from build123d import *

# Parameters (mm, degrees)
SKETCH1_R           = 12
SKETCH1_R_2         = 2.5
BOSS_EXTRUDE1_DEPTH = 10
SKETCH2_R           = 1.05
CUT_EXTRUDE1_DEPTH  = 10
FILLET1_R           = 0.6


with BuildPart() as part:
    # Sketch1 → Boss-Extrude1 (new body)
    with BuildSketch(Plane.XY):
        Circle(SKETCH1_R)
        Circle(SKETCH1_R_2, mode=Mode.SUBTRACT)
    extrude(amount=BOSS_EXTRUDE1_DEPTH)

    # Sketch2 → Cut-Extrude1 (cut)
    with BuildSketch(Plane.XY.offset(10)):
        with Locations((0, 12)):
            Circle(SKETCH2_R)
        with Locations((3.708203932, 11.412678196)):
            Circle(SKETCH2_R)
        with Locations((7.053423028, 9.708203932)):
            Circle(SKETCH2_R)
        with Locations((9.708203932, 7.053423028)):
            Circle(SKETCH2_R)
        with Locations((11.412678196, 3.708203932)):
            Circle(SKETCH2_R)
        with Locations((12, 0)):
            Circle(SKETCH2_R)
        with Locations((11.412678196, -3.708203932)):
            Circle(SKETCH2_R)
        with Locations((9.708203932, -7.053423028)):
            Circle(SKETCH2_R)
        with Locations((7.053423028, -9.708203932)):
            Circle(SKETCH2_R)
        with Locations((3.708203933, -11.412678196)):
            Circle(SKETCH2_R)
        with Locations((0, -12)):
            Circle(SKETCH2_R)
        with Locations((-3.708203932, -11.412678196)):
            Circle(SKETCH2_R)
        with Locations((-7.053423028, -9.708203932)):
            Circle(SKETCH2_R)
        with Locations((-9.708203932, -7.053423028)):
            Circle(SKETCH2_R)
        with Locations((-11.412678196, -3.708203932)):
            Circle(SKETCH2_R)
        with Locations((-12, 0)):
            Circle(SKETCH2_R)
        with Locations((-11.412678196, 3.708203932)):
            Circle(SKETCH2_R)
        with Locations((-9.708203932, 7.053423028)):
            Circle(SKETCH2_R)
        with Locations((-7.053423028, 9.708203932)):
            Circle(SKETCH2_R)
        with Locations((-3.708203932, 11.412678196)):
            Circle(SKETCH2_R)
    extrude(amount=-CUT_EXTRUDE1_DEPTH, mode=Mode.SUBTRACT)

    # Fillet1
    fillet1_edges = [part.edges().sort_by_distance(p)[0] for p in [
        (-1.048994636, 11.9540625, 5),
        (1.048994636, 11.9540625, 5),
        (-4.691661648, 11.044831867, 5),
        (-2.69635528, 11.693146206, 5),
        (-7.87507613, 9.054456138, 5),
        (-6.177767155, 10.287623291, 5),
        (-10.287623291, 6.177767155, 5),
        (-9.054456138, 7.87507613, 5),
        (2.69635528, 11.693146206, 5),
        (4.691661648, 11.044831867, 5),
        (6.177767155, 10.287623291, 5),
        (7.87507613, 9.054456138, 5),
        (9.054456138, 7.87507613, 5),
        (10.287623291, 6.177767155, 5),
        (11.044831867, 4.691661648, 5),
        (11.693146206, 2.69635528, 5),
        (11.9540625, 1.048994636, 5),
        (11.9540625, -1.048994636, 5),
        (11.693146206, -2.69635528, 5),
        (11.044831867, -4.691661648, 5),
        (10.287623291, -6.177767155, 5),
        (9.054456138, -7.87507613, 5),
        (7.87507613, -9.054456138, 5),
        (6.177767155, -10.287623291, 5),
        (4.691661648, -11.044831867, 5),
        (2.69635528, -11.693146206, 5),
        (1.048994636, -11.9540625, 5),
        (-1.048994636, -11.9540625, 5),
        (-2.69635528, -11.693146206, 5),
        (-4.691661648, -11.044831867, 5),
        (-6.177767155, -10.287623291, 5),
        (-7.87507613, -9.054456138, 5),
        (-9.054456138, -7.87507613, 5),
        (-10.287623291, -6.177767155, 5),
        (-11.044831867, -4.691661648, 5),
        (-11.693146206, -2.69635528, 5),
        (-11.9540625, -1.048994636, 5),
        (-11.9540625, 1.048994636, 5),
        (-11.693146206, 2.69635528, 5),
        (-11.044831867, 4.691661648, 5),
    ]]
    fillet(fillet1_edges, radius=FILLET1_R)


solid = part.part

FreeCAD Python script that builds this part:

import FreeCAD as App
import Part
import Sketcher

V = App.Vector


def edges_at(feature, points):
    """Names of the edges that pass closest to the given points."""
    edges = feature.Shape.Edges
    near = lambda p: min(range(len(edges)), key=lambda i: edges[i].distToShape(Part.Vertex(*p))[0])
    return sorted({f"Edge{near(p) + 1}" for p in points})

doc = App.newDocument("Part")
body = doc.addObject("PartDesign::Body", "Body")

# Sketch on XY plane
sketch1 = doc.addObject("Sketcher::SketchObject", "Sketch")
body.addObject(sketch1)
sketch1.AttachmentSupport = (doc.XY_Plane, [""])
sketch1.MapMode = "FlatFace"
sketch1.addGeometry(Part.Circle(V(0, 0, 0), V(0, 0, 1), 12), False)
sketch1.addGeometry(Part.Circle(V(0, 0, 0), V(0, 0, 1), 2.5), False)
sketch1.addConstraint(Sketcher.Constraint("Coincident", 0, 3, -1, 1))
sketch1.addConstraint(Sketcher.Constraint("Coincident", 1, 3, -1, 1))
sketch1.addConstraint(Sketcher.Constraint("Diameter", 0, 24.0))
sketch1.addConstraint(Sketcher.Constraint("Diameter", 1, 5.0))
pad1 = doc.addObject("PartDesign::Pad", "Pad")
body.addObject(pad1)
pad1.Profile = sketch1
pad1.Length = 10

# Sketch on XY plane
sketch2 = doc.addObject("Sketcher::SketchObject", "Sketch001")
body.addObject(sketch2)
sketch2.AttachmentSupport = (doc.XY_Plane, [""])
sketch2.MapMode = "FlatFace"
sketch2.AttachmentOffset = App.Placement(V(0, 0, 10), App.Rotation())
sketch2.addGeometry(Part.Circle(V(0, 12, 0), V(0, 0, 1), 1.1), False)
sketch2.addGeometry(Part.Circle(V(3.7, 11.4, 0), V(0, 0, 1), 1.1), False)
sketch2.addGeometry(Part.Circle(V(7.1, 9.7, 0), V(0, 0, 1), 1.1), False)
sketch2.addGeometry(Part.Circle(V(9.7, 7.1, 0), V(0, 0, 1), 1.1), False)
sketch2.addGeometry(Part.Circle(V(11.4, 3.7, 0), V(0, 0, 1), 1.1), False)
sketch2.addGeometry(Part.Circle(V(12, 0, 0), V(0, 0, 1), 1.1), False)
sketch2.addGeometry(Part.Circle(V(11.4, -3.7, 0), V(0, 0, 1), 1.1), False)
sketch2.addGeometry(Part.Circle(V(9.7, -7.1, 0), V(0, 0, 1), 1.1), False)
sketch2.addGeometry(Part.Circle(V(7.1, -9.7, 0), V(0, 0, 1), 1.1), False)
sketch2.addGeometry(Part.Circle(V(3.7, -11.4, 0), V(0, 0, 1), 1.1), False)
sketch2.addGeometry(Part.Circle(V(0, -12, 0), V(0, 0, 1), 1.1), False)
sketch2.addGeometry(Part.Circle(V(-3.7, -11.4, 0), V(0, 0, 1), 1.1), False)
sketch2.addGeometry(Part.Circle(V(-7.1, -9.7, 0), V(0, 0, 1), 1.1), False)
sketch2.addGeometry(Part.Circle(V(-9.7, -7.1, 0), V(0, 0, 1), 1.1), False)
sketch2.addGeometry(Part.Circle(V(-11.4, -3.7, 0), V(0, 0, 1), 1.1), False)
sketch2.addGeometry(Part.Circle(V(-12, 0, 0), V(0, 0, 1), 1.1), False)
sketch2.addGeometry(Part.Circle(V(-11.4, 3.7, 0), V(0, 0, 1), 1.1), False)
sketch2.addGeometry(Part.Circle(V(-9.7, 7.1, 0), V(0, 0, 1), 1.1), False)
sketch2.addGeometry(Part.Circle(V(-7.1, 9.7, 0), V(0, 0, 1), 1.1), False)
sketch2.addGeometry(Part.Circle(V(-3.7, 11.4, 0), V(0, 0, 1), 1.1), False)
sketch2.addConstraint(Sketcher.Constraint("Equal", 0, 1))
sketch2.addConstraint(Sketcher.Constraint("Equal", 1, 2))
sketch2.addConstraint(Sketcher.Constraint("Equal", 2, 3))
sketch2.addConstraint(Sketcher.Constraint("Equal", 3, 4))
sketch2.addConstraint(Sketcher.Constraint("Equal", 4, 5))
sketch2.addConstraint(Sketcher.Constraint("Equal", 5, 6))
sketch2.addConstraint(Sketcher.Constraint("Equal", 6, 7))
sketch2.addConstraint(Sketcher.Constraint("Equal", 7, 8))
sketch2.addConstraint(Sketcher.Constraint("Equal", 8, 9))
sketch2.addConstraint(Sketcher.Constraint("Equal", 9, 10))
sketch2.addConstraint(Sketcher.Constraint("Equal", 10, 11))
sketch2.addConstraint(Sketcher.Constraint("Equal", 11, 12))
sketch2.addConstraint(Sketcher.Constraint("Equal", 12, 13))
sketch2.addConstraint(Sketcher.Constraint("Equal", 13, 14))
sketch2.addConstraint(Sketcher.Constraint("Equal", 14, 15))
sketch2.addConstraint(Sketcher.Constraint("Equal", 15, 16))
sketch2.addConstraint(Sketcher.Constraint("Equal", 16, 17))
sketch2.addConstraint(Sketcher.Constraint("Equal", 17, 18))
sketch2.addConstraint(Sketcher.Constraint("Equal", 18, 19))
sketch2.addConstraint(Sketcher.Constraint("Symmetric", 0, 3, 10, 3, -1, 1))
sketch2.addConstraint(Sketcher.Constraint("Symmetric", 1, 3, 11, 3, -1, 1))
sketch2.addConstraint(Sketcher.Constraint("Symmetric", 2, 3, 12, 3, -1, 1))
sketch2.addConstraint(Sketcher.Constraint("Symmetric", 3, 3, 13, 3, -1, 1))
sketch2.addConstraint(Sketcher.Constraint("Symmetric", 4, 3, 14, 3, -1, 1))
sketch2.addConstraint(Sketcher.Constraint("Symmetric", 5, 3, 15, 3, -1, 1))
sketch2.addConstraint(Sketcher.Constraint("Symmetric", 6, 3, 16, 3, -1, 1))
sketch2.addConstraint(Sketcher.Constraint("Symmetric", 7, 3, 17, 3, -1, 1))
sketch2.addConstraint(Sketcher.Constraint("Symmetric", 8, 3, 18, 3, -1, 1))
sketch2.addConstraint(Sketcher.Constraint("Symmetric", 9, 3, 19, 3, -1, 1))
sketch2.addConstraint(Sketcher.Constraint("Symmetric", 9, 3, 11, 3, -2))
sketch2.addConstraint(Sketcher.Constraint("Symmetric", 8, 3, 12, 3, -2))
sketch2.addConstraint(Sketcher.Constraint("Symmetric", 7, 3, 13, 3, -2))
sketch2.addConstraint(Sketcher.Constraint("Symmetric", 6, 3, 14, 3, -2))
sketch2.addConstraint(Sketcher.Constraint("PointOnObject", 0, 3, -2))
sketch2.addConstraint(Sketcher.Constraint("PointOnObject", 5, 3, -1))
sketch2.addConstraint(Sketcher.Constraint("Diameter", 0, 2.1))
sketch2.addConstraint(Sketcher.Constraint("DistanceY", -1, 1, 0, 3, 12.0))
sketch2.addConstraint(Sketcher.Constraint("DistanceX", -1, 1, 5, 3, 12.0))
sketch2.addConstraint(Sketcher.Constraint("DistanceX", 1, 3, 3, 3, 6.0))
sketch2.addConstraint(Sketcher.Constraint("DistanceY", 4, 3, 2, 3, 6.0))
sketch2.addConstraint(Sketcher.Constraint("DistanceY", -1, 1, 1, 3, 11.412678))
sketch2.addConstraint(Sketcher.Constraint("DistanceX", -1, 1, 4, 3, 11.412678))
sketch2.addConstraint(Sketcher.Constraint("DistanceX", 1, 3, 2, 3, 3.345219))
sketch2.addConstraint(Sketcher.Constraint("DistanceY", 3, 3, 2, 3, 2.654781))
sketch2.addConstraint(Sketcher.Constraint("DistanceX", -1, 1, 1, 3, 3.708204))
sketch2.addConstraint(Sketcher.Constraint("DistanceY", -1, 1, 2, 3, 9.708204))
pocket1 = doc.addObject("PartDesign::Pocket", "Pocket")
body.addObject(pocket1)
pocket1.Profile = sketch2
pocket1.Length = 10
doc.recompute()

fillet = doc.addObject("PartDesign::Fillet", "Fillet")
body.addObject(fillet)
fillet.Base = (pocket1, edges_at(pocket1, [
    (-1.049, 11.954, 5),
    (1.049, 11.954, 5),
    (-4.692, 11.045, 5),
    (-2.696, 11.693, 5),
    (-7.875, 9.054, 5),
    (-6.178, 10.288, 5),
    (-10.288, 6.178, 5),
    (-9.054, 7.875, 5),
    (2.696, 11.693, 5),
    (4.692, 11.045, 5),
    (6.178, 10.288, 5),
    (7.875, 9.054, 5),
    (9.054, 7.875, 5),
    (10.288, 6.178, 5),
    (11.045, 4.692, 5),
    (11.693, 2.696, 5),
    (11.954, 1.049, 5),
    (11.954, -1.049, 5),
    (11.693, -2.696, 5),
    (11.045, -4.692, 5),
    (10.288, -6.178, 5),
    (9.054, -7.875, 5),
    (7.875, -9.054, 5),
    (6.178, -10.288, 5),
    (4.692, -11.045, 5),
    (2.696, -11.693, 5),
    (1.049, -11.954, 5),
    (-1.049, -11.954, 5),
    (-2.696, -11.693, 5),
    (-4.692, -11.045, 5),
    (-6.178, -10.288, 5),
    (-7.875, -9.054, 5),
    (-9.054, -7.875, 5),
    (-10.288, -6.178, 5),
    (-11.045, -4.692, 5),
    (-11.693, -2.696, 5),
    (-11.954, -1.049, 5),
    (-11.954, 1.049, 5),
    (-11.693, 2.696, 5),
    (-11.045, 4.692, 5),
]))
fillet.Radius = 0.6

doc.recompute()
